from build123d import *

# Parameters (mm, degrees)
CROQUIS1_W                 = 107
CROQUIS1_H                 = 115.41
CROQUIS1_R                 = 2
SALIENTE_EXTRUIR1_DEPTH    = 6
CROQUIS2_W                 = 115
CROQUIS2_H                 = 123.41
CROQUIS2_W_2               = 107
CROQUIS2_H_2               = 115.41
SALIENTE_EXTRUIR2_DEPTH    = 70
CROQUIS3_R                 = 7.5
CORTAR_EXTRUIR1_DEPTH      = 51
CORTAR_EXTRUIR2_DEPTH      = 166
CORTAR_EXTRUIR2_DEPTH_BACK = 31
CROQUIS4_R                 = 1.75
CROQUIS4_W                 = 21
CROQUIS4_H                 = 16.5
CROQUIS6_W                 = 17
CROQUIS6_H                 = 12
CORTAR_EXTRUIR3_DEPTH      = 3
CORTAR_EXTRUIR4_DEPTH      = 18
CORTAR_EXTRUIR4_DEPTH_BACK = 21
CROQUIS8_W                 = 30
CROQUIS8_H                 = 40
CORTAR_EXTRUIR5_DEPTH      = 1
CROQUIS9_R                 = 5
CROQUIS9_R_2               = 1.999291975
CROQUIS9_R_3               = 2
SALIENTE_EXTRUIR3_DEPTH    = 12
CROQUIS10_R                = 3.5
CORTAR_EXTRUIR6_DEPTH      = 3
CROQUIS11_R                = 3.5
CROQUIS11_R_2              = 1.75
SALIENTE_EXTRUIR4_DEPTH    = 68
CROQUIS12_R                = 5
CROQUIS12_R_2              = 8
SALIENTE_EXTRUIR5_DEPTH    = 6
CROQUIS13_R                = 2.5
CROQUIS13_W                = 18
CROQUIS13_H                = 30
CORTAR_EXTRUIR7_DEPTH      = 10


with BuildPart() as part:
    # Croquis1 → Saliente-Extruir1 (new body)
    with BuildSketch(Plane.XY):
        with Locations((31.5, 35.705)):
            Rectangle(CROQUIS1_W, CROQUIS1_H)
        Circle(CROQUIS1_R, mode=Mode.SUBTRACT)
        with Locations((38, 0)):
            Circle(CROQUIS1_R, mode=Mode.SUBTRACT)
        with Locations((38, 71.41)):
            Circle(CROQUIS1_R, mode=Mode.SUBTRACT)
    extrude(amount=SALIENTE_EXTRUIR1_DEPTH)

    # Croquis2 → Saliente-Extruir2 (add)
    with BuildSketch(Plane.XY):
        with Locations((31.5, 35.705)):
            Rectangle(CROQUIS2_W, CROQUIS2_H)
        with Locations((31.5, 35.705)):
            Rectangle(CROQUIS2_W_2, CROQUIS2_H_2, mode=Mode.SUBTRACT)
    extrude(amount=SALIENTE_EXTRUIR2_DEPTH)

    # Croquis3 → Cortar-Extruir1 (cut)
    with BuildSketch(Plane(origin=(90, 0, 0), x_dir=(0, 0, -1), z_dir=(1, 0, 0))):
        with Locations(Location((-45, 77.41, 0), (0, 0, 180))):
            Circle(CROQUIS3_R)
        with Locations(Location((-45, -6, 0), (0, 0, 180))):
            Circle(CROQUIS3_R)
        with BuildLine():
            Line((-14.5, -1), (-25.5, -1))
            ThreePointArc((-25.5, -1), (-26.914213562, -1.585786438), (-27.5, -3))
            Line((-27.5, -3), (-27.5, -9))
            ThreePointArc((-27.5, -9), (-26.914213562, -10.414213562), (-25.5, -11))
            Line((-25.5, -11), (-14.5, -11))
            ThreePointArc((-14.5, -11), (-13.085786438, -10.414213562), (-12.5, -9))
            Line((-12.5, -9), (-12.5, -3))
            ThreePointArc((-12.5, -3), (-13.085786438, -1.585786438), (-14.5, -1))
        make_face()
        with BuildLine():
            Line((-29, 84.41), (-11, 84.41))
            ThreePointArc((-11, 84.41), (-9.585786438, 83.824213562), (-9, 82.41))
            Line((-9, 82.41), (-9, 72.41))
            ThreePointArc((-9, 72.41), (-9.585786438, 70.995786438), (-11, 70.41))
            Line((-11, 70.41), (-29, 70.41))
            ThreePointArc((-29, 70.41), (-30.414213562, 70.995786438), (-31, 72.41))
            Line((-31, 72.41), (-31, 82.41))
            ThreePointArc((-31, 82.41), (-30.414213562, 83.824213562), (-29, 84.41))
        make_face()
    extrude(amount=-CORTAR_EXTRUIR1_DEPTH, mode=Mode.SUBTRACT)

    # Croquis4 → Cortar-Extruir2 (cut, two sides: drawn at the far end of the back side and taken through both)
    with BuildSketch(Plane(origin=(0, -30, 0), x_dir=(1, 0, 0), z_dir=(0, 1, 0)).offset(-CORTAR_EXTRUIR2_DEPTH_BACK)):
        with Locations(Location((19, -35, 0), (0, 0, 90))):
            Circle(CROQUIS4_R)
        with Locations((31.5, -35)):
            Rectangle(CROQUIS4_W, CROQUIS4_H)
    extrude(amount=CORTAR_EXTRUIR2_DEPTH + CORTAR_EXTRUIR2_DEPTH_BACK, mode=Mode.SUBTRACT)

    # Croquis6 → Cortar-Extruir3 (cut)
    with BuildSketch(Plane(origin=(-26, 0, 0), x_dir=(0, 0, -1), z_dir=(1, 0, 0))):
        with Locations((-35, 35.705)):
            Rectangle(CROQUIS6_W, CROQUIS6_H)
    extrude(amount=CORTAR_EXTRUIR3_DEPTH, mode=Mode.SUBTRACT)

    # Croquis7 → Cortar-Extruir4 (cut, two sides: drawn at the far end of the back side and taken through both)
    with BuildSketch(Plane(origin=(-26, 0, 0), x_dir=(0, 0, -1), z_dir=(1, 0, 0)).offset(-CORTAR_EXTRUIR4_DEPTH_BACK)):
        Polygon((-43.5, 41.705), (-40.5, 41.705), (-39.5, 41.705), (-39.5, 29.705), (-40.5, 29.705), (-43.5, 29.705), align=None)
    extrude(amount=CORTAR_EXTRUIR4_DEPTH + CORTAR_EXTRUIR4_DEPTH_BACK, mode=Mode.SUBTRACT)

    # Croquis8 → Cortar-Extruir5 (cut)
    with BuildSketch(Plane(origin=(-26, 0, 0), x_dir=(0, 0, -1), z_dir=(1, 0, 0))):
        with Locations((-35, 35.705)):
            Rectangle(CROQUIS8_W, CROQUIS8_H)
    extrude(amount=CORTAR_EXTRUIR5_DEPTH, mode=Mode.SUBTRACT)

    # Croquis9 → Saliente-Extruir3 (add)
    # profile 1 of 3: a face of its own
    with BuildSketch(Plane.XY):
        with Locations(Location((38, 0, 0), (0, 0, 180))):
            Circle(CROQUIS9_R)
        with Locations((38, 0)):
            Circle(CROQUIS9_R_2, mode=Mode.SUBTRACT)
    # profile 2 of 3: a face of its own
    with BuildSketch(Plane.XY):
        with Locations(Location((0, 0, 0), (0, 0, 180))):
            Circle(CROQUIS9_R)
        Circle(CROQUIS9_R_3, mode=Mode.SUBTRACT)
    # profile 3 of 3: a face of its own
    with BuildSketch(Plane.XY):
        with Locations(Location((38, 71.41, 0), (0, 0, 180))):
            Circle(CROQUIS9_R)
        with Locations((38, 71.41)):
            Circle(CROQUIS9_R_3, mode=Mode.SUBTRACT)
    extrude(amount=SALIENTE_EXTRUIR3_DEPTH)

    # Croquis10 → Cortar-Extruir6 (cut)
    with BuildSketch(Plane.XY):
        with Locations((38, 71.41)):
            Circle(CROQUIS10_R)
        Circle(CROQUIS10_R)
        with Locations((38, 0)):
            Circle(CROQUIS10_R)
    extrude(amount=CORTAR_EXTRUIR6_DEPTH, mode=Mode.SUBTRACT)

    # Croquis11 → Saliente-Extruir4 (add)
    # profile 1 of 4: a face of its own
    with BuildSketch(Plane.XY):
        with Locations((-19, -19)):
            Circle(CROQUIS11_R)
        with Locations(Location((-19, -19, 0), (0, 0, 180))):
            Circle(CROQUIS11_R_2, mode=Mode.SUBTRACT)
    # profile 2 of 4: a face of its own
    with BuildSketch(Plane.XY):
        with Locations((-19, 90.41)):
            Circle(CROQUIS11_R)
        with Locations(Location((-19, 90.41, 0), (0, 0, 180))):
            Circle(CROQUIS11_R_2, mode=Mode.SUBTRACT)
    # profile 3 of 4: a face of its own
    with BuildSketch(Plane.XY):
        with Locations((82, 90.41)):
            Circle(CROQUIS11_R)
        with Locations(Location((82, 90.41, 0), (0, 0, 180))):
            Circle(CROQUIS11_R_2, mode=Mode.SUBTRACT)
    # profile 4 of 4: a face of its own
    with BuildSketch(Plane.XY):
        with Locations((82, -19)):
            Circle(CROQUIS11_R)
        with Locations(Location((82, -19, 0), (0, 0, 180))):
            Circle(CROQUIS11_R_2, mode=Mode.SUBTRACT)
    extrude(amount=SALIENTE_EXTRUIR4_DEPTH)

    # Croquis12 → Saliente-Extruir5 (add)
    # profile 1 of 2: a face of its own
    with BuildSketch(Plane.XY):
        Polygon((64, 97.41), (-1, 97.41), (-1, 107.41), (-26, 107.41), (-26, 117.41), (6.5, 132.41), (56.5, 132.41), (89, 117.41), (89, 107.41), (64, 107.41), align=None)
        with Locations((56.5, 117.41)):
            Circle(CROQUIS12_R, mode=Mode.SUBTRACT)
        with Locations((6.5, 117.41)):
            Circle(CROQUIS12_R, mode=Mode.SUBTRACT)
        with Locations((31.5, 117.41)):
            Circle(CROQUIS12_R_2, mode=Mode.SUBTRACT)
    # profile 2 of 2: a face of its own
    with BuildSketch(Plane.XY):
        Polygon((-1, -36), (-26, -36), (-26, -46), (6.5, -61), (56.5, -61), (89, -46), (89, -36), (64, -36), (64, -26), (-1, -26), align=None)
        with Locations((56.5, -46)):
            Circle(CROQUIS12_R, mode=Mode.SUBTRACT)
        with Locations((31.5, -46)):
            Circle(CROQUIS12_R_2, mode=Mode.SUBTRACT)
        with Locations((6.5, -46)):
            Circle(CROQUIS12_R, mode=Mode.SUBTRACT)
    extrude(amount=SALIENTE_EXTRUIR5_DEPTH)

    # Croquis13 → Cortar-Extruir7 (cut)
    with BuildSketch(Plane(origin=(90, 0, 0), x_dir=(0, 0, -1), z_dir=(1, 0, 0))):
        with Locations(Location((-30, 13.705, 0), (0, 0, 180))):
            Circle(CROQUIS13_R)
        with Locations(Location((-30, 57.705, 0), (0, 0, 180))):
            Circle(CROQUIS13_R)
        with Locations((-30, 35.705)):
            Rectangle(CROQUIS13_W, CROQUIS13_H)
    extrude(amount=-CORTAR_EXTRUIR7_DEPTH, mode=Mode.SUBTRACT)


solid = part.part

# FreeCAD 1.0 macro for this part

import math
import FreeCAD as App
import Part
import Sketcher

V = App.Vector
Q = App.Units.Quantity


def add_polygon(sketch, points):
    """Adds a closed chain of lines whose ends are joined by coincident constraints."""
    first, n = sketch.GeometryCount, len(points)
    for a, b in zip(points, points[1:] + points[:1]):
        sketch.addGeometry(Part.LineSegment(App.Vector(*a, 0), App.Vector(*b, 0)), False)
    for i in range(n):
        sketch.addConstraint(Sketcher.Constraint("Coincident", first + i, 2, first + (i + 1) % n, 1))

doc = App.newDocument("Part")
body = doc.addObject("PartDesign::Body", "Body")

sketch1 = doc.addObject("Sketcher::SketchObject", "Sketch")
body.addObject(sketch1)
sketch1.AttachmentSupport = (doc.XY_Plane, [""])
sketch1.MapMode = "FlatFace"
add_polygon(sketch1, [(-22, 93.4), (-22, -22), (85, -22), (85, 93.4)])
sketch1.addGeometry(Part.Circle(V(0, 0, 0), V(0, 0, 1), 2), False)
sketch1.addGeometry(Part.Circle(V(38, 0, 0), V(0, 0, 1), 2), False)
sketch1.addGeometry(Part.Circle(V(38, 71.4, 0), V(0, 0, 1), 2), False)
sketch1.addConstraint([
    Sketcher.Constraint("Vertical", 0),
    Sketcher.Constraint("Horizontal", 1),
    Sketcher.Constraint("Vertical", 2),
    Sketcher.Constraint("Horizontal", 3),
    Sketcher.Constraint("Coincident", 4, 3, -1, 1),
    Sketcher.Constraint("Equal", 4, 5),
    Sketcher.Constraint("Equal", 5, 6),
    Sketcher.Constraint("PointOnObject", 5, 3, -1),
    Sketcher.Constraint("Vertical", 5, 3, 6, 3),
    Sketcher.Constraint("Diameter", 4, Q("4 mm")),
    Sketcher.Constraint("DistanceX", 1, 1, 1, 2, Q("107 mm")),
    Sketcher.Constraint("DistanceX", -1, 1, 5, 3, Q("38 mm")),
    Sketcher.Constraint("DistanceX", 0, 2, -1, 1, Q("22 mm")),
    Sketcher.Constraint("DistanceY", 0, 2, -1, 1, Q("22 mm")),
    Sketcher.Constraint("DistanceY", 6, 3, 2, 2, Q("22 mm")),
    Sketcher.Constraint("DistanceY", 0, 2, 0, 1, Q("115.41 mm")),
])
pad1 = doc.addObject("PartDesign::Pad", "Pad")
body.addObject(pad1)
pad1.Profile = sketch1
pad1.Length = 6

sketch2 = doc.addObject("Sketcher::SketchObject", "Sketch001")
body.addObject(sketch2)
sketch2.AttachmentSupport = (doc.XY_Plane, [""])
sketch2.MapMode = "FlatFace"
add_polygon(sketch2, [(-26, 97), (-26, -26), (89, -26), (89, 97)])
add_polygon(sketch2, [(85, -22), (-22, -22), (-22, 93), (85, 93)])
sketch2.addConstraint([
    Sketcher.Constraint("Vertical", 0),
    Sketcher.Constraint("Horizontal", 1),
    Sketcher.Constraint("Vertical", 2),
    Sketcher.Constraint("Horizontal", 3),
    Sketcher.Constraint("Horizontal", 4),
    Sketcher.Constraint("Vertical", 5),
    Sketcher.Constraint("Horizontal", 6),
    Sketcher.Constraint("Vertical", 7),
    Sketcher.Constraint("DistanceX", 1, 1, 1, 2, Q("115 mm")),
    Sketcher.Constraint("DistanceX", 4, 2, 4, 1, Q("107 mm")),
    Sketcher.Constraint("DistanceX", 0, 2, -1, 1, Q("26 mm")),
    Sketcher.Constraint("DistanceY", 0, 2, -1, 1, Q("26 mm")),
    Sketcher.Constraint("DistanceX", 4, 2, -1, 1, Q("22 mm")),
    Sketcher.Constraint("DistanceY", 4, 2, -1, 1, Q("22 mm")),
    Sketcher.Constraint("DistanceY", 5, 2, 3, 2, Q("4 mm")),
    Sketcher.Constraint("DistanceY", 0, 2, 0, 1, Q("123.41 mm")),
])
pad2 = doc.addObject("PartDesign::Pad", "Pad001")
body.addObject(pad2)
pad2.Profile = sketch2
pad2.Length = 70

sketch3 = doc.addObject("Sketcher::SketchObject", "Sketch002")
body.addObject(sketch3)
sketch3.AttachmentSupport = (doc.YZ_Plane, [""])
sketch3.MapMode = "FlatFace"
sketch3.AttachmentOffset = App.Placement(V(0, 0, 90), App.Rotation())
sketch3.addGeometry([
    Part.Circle(V(77.4, 45, 0), V(0, 0, 1), 7.5),
    Part.Circle(V(-6, 45, 0), V(0, 0, 1), 7.5),
    Part.LineSegment(V(-1, 14.5, 0), V(-1, 25.5, 0)),
    Part.ArcOfCircle(Part.Circle(V(-3, 25.5, 0), V(0, 0, 1), 2), math.radians(0), math.radians(90)),
    Part.LineSegment(V(-3, 27.5, 0), V(-9, 27.5, 0)),
    Part.ArcOfCircle(Part.Circle(V(-9, 25.5, 0), V(0, 0, 1), 2), math.radians(90), math.radians(180)),
    Part.LineSegment(V(-11, 25.5, 0), V(-11, 14.5, 0)),
    Part.ArcOfCircle(Part.Circle(V(-9, 14.5, 0), V(0, 0, 1), 2), math.radians(-180), math.radians(-90)),
    Part.LineSegment(V(-9, 12.5, 0), V(-3, 12.5, 0)),
    Part.ArcOfCircle(Part.Circle(V(-3, 14.5, 0), V(0, 0, 1), 2), math.radians(-90), math.radians(0)),
    Part.LineSegment(V(84.4, 11, 0), V(84.4, 29, 0)),
    Part.ArcOfCircle(Part.Circle(V(82.4, 29, 0), V(0, 0, 1), 2), math.radians(0), math.radians(90)),
    Part.LineSegment(V(82.4, 31, 0), V(72.4, 31, 0)),
    Part.ArcOfCircle(Part.Circle(V(72.4, 29, 0), V(0, 0, 1), 2), math.radians(90), math.radians(180)),
    Part.LineSegment(V(70.4, 29, 0), V(70.4, 11, 0)),
    Part.ArcOfCircle(Part.Circle(V(72.4, 11, 0), V(0, 0, 1), 2), math.radians(-180), math.radians(-90)),
    Part.LineSegment(V(72.4, 9, 0), V(82.4, 9, 0)),
    Part.ArcOfCircle(Part.Circle(V(82.4, 11, 0), V(0, 0, 1), 2), math.radians(-90), math.radians(0)),
], False)
sketch3.addConstraint([
    Sketcher.Constraint("Tangent", 2, 2, 3, 1),
    Sketcher.Constraint("Tangent", 3, 2, 4, 1),
    Sketcher.Constraint("Tangent", 4, 2, 5, 1),
    Sketcher.Constraint("Tangent", 5, 2, 6, 1),
    Sketcher.Constraint("Tangent", 6, 2, 7, 1),
    Sketcher.Constraint("Tangent", 7, 2, 8, 1),
    Sketcher.Constraint("Tangent", 8, 2, 9, 1),
    Sketcher.Constraint("Tangent", 9, 2, 2, 1),
    Sketcher.Constraint("Tangent", 10, 2, 11, 1),
    Sketcher.Constraint("Tangent", 11, 2, 12, 1),
    Sketcher.Constraint("Tangent", 12, 2, 13, 1),
    Sketcher.Constraint("Tangent", 13, 2, 14, 1),
    Sketcher.Constraint("Tangent", 14, 2, 15, 1),
    Sketcher.Constraint("Tangent", 15, 2, 16, 1),
    Sketcher.Constraint("Tangent", 16, 2, 17, 1),
    Sketcher.Constraint("Tangent", 17, 2, 10, 1),
    Sketcher.Constraint("Vertical", 2),
    Sketcher.Constraint("Horizontal", 4),
    Sketcher.Constraint("Vertical", 6),
    Sketcher.Constraint("Horizontal", 8),
    Sketcher.Constraint("Vertical", 10),
    Sketcher.Constraint("Horizontal", 12),
    Sketcher.Constraint("Vertical", 14),
    Sketcher.Constraint("Horizontal", 16),
    Sketcher.Constraint("Equal", 0, 1),
    Sketcher.Constraint("Equal", 3, 5),
    Sketcher.Constraint("Equal", 5, 7),
    Sketcher.Constraint("Equal", 7, 9),
    Sketcher.Constraint("Equal", 9, 11),
    Sketcher.Constraint("Equal", 11, 13),
    Sketcher.Constraint("Equal", 13, 15),
    Sketcher.Constraint("Equal", 15, 17),
    Sketcher.Constraint("Horizontal", 0, 3, 1, 3),
    Sketcher.Constraint("Diameter", 0, Q("15 mm")),
    Sketcher.Constraint("Radius", 3, Q("2 mm")),
    Sketcher.Constraint("DistanceX", 4, 2, 4, 1, Q("6 mm")),
    Sketcher.Constraint("DistanceX", 12, 2, 12, 1, Q("10 mm")),
    Sketcher.Constraint("DistanceY", 2, 1, 2, 2, Q("11 mm")),
    Sketcher.Constraint("DistanceY", 10, 1, 10, 2, Q("18 mm")),
    Sketcher.Constraint("DistanceY", -1, 1, 0, 3, Q("45 mm")),
    Sketcher.Constraint("DistanceX", 1, 3, -1, 1, Q("6 mm")),
    Sketcher.Constraint("DistanceX", 3, 3, -1, 1, Q("3 mm")),
    Sketcher.Constraint("DistanceY", -1, 1, 11, 3, Q("29 mm")),
    Sketcher.Constraint("DistanceX", 0, 3, 11, 3, Q("5 mm")),
    Sketcher.Constraint("DistanceY", -1, 1, 3, 3, Q("25.5 mm")),
    Sketcher.Constraint("DistanceX", -1, 1, 0, 3, Q("77.41 mm")),
])
pocket1 = doc.addObject("PartDesign::Pocket", "Pocket")
body.addObject(pocket1)
pocket1.Profile = sketch3
pocket1.Length = 51

sketch4 = doc.addObject("Sketcher::SketchObject", "Sketch003")
body.addObject(sketch4)
sketch4.AttachmentSupport = (doc.XZ_Plane, [""])
sketch4.MapMode = "FlatFace"
sketch4.AttachmentOffset = App.Placement(V(0, 0, 30), App.Rotation())
sketch4.addGeometry(Part.Circle(V(19, 35, 0), V(0, 0, 1), 1.8), False)
add_polygon(sketch4, [(21, 26.8), (21, 43.2), (42, 43.2), (42, 26.8)])
sketch4.addConstraint([
    Sketcher.Constraint("Vertical", 1),
    Sketcher.Constraint("Horizontal", 2),
    Sketcher.Constraint("Vertical", 3),
    Sketcher.Constraint("Horizontal", 4),
    Sketcher.Constraint("Diameter", 0, Q("3.5 mm")),
    Sketcher.Constraint("DistanceX", 2, 1, 2, 2, Q("21 mm")),
    Sketcher.Constraint("DistanceY", 1, 1, 1, 2, Q("16.5 mm")),
    Sketcher.Constraint("DistanceX", -1, 1, 0, 3, Q("19 mm")),
    Sketcher.Constraint("DistanceY", -1, 1, 0, 3, Q("35 mm")),
    Sketcher.Constraint("DistanceX", -1, 1, 1, 2, Q("21 mm")),
    Sketcher.Constraint("DistanceY", -1, 1, 1, 2, Q("43.25 mm")),
])
pocket2 = doc.addObject("PartDesign::Pocket", "Pocket001")
body.addObject(pocket2)
pocket2.Profile = sketch4
pocket2.Type = "ThroughAll"
pocket2.Midplane = True

sketch5 = doc.addObject("Sketcher::SketchObject", "Sketch004")
body.addObject(sketch5)
sketch5.AttachmentSupport = (doc.YZ_Plane, [""])
sketch5.MapMode = "FlatFace"
sketch5.AttachmentOffset = App.Placement(V(0, 0, -26), App.Rotation())
add_polygon(sketch5, [(42, 44), (30, 44), (30, 26), (42, 26)])
sketch5.addConstraint([
    Sketcher.Constraint("Horizontal", 0),
    Sketcher.Constraint("Vertical", 1),
    Sketcher.Constraint("Horizontal", 2),
    Sketcher.Constraint("Vertical", 3),
    Sketcher.Constraint("DistanceX", 0, 2, 0, 1, Q("12 mm")),
    Sketcher.Constraint("DistanceY", 1, 2, 1, 1, Q("17 mm")),
    Sketcher.Constraint("DistanceY", -1, 1, 0, 2, Q("43.5 mm")),
    Sketcher.Constraint("DistanceX", -1, 1, 0, 2, Q("29.705 mm")),
])
pocket3 = doc.addObject("PartDesign::Pocket", "Pocket002")
body.addObject(pocket3)
pocket3.Profile = sketch5
pocket3.Length = 3
pocket3.Reversed = True

sketch6 = doc.addObject("Sketcher::SketchObject", "Sketch005")
body.addObject(sketch6)
sketch6.AttachmentSupport = (doc.YZ_Plane, [""])
sketch6.MapMode = "FlatFace"
sketch6.AttachmentOffset = App.Placement(V(0, 0, -26), App.Rotation())
add_polygon(sketch6, [(41.7, 39.5), (41.7, 43.5), (29.7, 43.5), (29.7, 39.5)])
sketch6.addConstraint([
    Sketcher.Constraint("Vertical", 0),
    Sketcher.Constraint("Horizontal", 1),
    Sketcher.Constraint("Vertical", 2),
    Sketcher.Constraint("Horizontal", 3),
    Sketcher.Constraint("DistanceX", 1, 2, 1, 1, Q("12 mm")),
    Sketcher.Constraint("DistanceY", 0, 1, 0, 2, Q("4 mm")),
    Sketcher.Constraint("DistanceY", -1, 1, 0, 2, Q("43.5 mm")),
    Sketcher.Constraint("DistanceX", -1, 1, 0, 2, Q("41.705 mm")),
])
pocket4 = doc.addObject("PartDesign::Pocket", "Pocket003")
body.addObject(pocket4)
pocket4.Profile = sketch6
pocket4.Type = "TwoLengths"
pocket4.Length = 18
pocket4.Length2 = 21
pocket4.Reversed = True

sketch7 = doc.addObject("Sketcher::SketchObject", "Sketch006")
body.addObject(sketch7)
sketch7.AttachmentSupport = (doc.YZ_Plane, [""])
sketch7.MapMode = "FlatFace"
sketch7.AttachmentOffset = App.Placement(V(0, 0, -26), App.Rotation())
add_polygon(sketch7, [(56, 50), (16, 50), (16, 20), (56, 20)])
sketch7.addConstraint([
    Sketcher.Constraint("Horizontal", 0),
    Sketcher.Constraint("Vertical", 1),
    Sketcher.Constraint("Horizontal", 2),
    Sketcher.Constraint("Vertical", 3),
    Sketcher.Constraint("DistanceX", 0, 2, 0, 1, Q("40 mm")),
    Sketcher.Constraint("DistanceY", 1, 2, 1, 1, Q("30 mm")),
    Sketcher.Constraint("DistanceY", -1, 1, 0, 2, Q("50 mm")),
    Sketcher.Constraint("DistanceX", -1, 1, 0, 2, Q("15.705 mm")),
])
pocket5 = doc.addObject("PartDesign::Pocket", "Pocket004")
body.addObject(pocket5)
pocket5.Profile = sketch7
pocket5.Length = 1
pocket5.Reversed = True

sketch8 = doc.addObject("Sketcher::SketchObject", "Sketch007")
body.addObject(sketch8)
sketch8.AttachmentSupport = (doc.XY_Plane, [""])
sketch8.MapMode = "FlatFace"
sketch8.addGeometry([
    Part.Circle(V(38, 0, 0), V(0, 0, 1), 5),
    Part.Circle(V(38, 0, 0), V(0, 0, 1), 2),
    Part.Circle(V(0, 0, 0), V(0, 0, 1), 5),
    Part.Circle(V(0, 0, 0), V(0, 0, 1), 2),
    Part.Circle(V(38, 71.4, 0), V(0, 0, 1), 5),
    Part.Circle(V(38, 71.4, 0), V(0, 0, 1), 2),
], False)
sketch8.addConstraint([
    Sketcher.Constraint("Coincident", 2, 3, -1, 1),
    Sketcher.Constraint("Coincident", 3, 3, -1, 1),
    Sketcher.Constraint("Coincident", 1, 3, 0, 3),
    Sketcher.Constraint("Coincident", 5, 3, 4, 3),
    Sketcher.Constraint("Equal", 0, 2),
    Sketcher.Constraint("Equal", 2, 4),
    Sketcher.Constraint("Equal", 3, 5),
    Sketcher.Constraint("PointOnObject", 0, 3, -1),
    Sketcher.Constraint("Vertical", 1, 3, 4, 3),
    Sketcher.Constraint("Diameter", 0, Q("10 mm")),
    Sketcher.Constraint("Diameter", 3, Q("4 mm")),
    Sketcher.Constraint("DistanceX", -1, 1, 0, 3, Q("38 mm")),
    Sketcher.Constraint("DistanceY", -1, 1, 4, 3, Q("71.41 mm")),
    Sketcher.Constraint("Diameter", 1, Q("3.998584 mm")),
])
pad3 = doc.addObject("PartDesign::Pad", "Pad002")
body.addObject(pad3)
pad3.Profile = sketch8
pad3.Length = 12

sketch9 = doc.addObject("Sketcher::SketchObject", "Sketch008")
body.addObject(sketch9)
sketch9.AttachmentSupport = (doc.XY_Plane, [""])
sketch9.MapMode = "FlatFace"
sketch9.addGeometry([
    Part.Circle(V(38, 71.4, 0), V(0, 0, 1), 3.5),
    Part.Circle(V(0, 0, 0), V(0, 0, 1), 3.5),
    Part.Circle(V(38, 0, 0), V(0, 0, 1), 3.5),
], False)
sketch9.addConstraint([
    Sketcher.Constraint("Coincident", 1, 3, -1, 1),
    Sketcher.Constraint("Equal", 0, 1),
    Sketcher.Constraint("Equal", 1, 2),
    Sketcher.Constraint("PointOnObject", 2, 3, -1),
    Sketcher.Constraint("Vertical", 0, 3, 2, 3),
    Sketcher.Constraint("Diameter", 0, Q("7 mm")),
    Sketcher.Constraint("DistanceX", -1, 1, 0, 3, Q("38 mm")),
    Sketcher.Constraint("DistanceY", -1, 1, 0, 3, Q("71.41 mm")),
])
pocket6 = doc.addObject("PartDesign::Pocket", "Pocket005")
body.addObject(pocket6)
pocket6.Profile = sketch9
pocket6.Length = 3
pocket6.Reversed = True

sketch10 = doc.addObject("Sketcher::SketchObject", "Sketch009")
body.addObject(sketch10)
sketch10.AttachmentSupport = (doc.XY_Plane, [""])
sketch10.MapMode = "FlatFace"
sketch10.addGeometry([
    Part.Circle(V(-19, -19, 0), V(0, 0, 1), 3.5),
    Part.Circle(V(-19, -19, 0), V(0, 0, 1), 1.8),
    Part.Circle(V(-19, 90.4, 0), V(0, 0, 1), 3.5),
    Part.Circle(V(-19, 90.4, 0), V(0, 0, 1), 1.8),
    Part.Circle(V(82, 90.4, 0), V(0, 0, 1), 3.5),
    Part.Circle(V(82, 90.4, 0), V(0, 0, 1), 1.8),
    Part.Circle(V(82, -19, 0), V(0, 0, 1), 3.5),
    Part.Circle(V(82, -19, 0), V(0, 0, 1), 1.8),
], False)
sketch10.addConstraint([
    Sketcher.Constraint("Coincident", 1, 3, 0, 3),
    Sketcher.Constraint("Coincident", 3, 3, 2, 3),
    Sketcher.Constraint("Coincident", 5, 3, 4, 3),
    Sketcher.Constraint("Coincident", 7, 3, 6, 3),
    Sketcher.Constraint("Equal", 0, 2),
    Sketcher.Constraint("Equal", 1, 3),
    Sketcher.Constraint("Equal", 2, 4),
    Sketcher.Constraint("Equal", 3, 5),
    Sketcher.Constraint("Equal", 4, 6),
    Sketcher.Constraint("Equal", 5, 7),
    Sketcher.Constraint("Horizontal", 3, 3, 4, 3),
    Sketcher.Constraint("Horizontal", 1, 3, 6, 3),
    Sketcher.Constraint("Vertical", 1, 3, 2, 3),
    Sketcher.Constraint("Vertical", 5, 3, 6, 3),
    Sketcher.Constraint("Diameter", 0, Q("7 mm")),
    Sketcher.Constraint("Diameter", 1, Q("3.5 mm")),
    Sketcher.Constraint("DistanceX", 0, 3, -1, 1, Q("19 mm")),
    Sketcher.Constraint("DistanceY", 0, 3, -1, 1, Q("19 mm")),
    Sketcher.Constraint("DistanceX", -1, 1, 4, 3, Q("82 mm")),
    Sketcher.Constraint("DistanceY", -1, 1, 2, 3, Q("90.41 mm")),
])
pad4 = doc.addObject("PartDesign::Pad", "Pad003")
body.addObject(pad4)
pad4.Profile = sketch10
pad4.Length = 68

sketch11 = doc.addObject("Sketcher::SketchObject", "Sketch010")
body.addObject(sketch11)
sketch11.AttachmentSupport = (doc.XY_Plane, [""])
sketch11.MapMode = "FlatFace"
add_polygon(sketch11, [(-1, 97), (64, 97), (64, 107), (89, 107), (89, 117), (56, 132), (6, 132), (-26, 117), (-26, 107), (-1, 107)])
sketch11.addGeometry(Part.Circle(V(56, 117, 0), V(0, 0, 1), 5), False)
sketch11.addGeometry(Part.Circle(V(32, 117, 0), V(0, 0, 1), 8), False)
sketch11.addGeometry(Part.Circle(V(6, 117, 0), V(0, 0, 1), 5), False)
add_polygon(sketch11, [(-1, -36), (-26, -36), (-26, -46), (6, -61), (56, -61), (89, -46), (89, -36), (64, -36), (64, -26), (-1, -26)])
sketch11.addGeometry(Part.Circle(V(6, -46, 0), V(0, 0, 1), 5), False)
sketch11.addGeometry(Part.Circle(V(32, -46, 0), V(0, 0, 1), 8), False)
sketch11.addGeometry(Part.Circle(V(56, -46, 0), V(0, 0, 1), 5), False)
sketch11.addConstraint([
    Sketcher.Constraint("Horizontal", 0),
    Sketcher.Constraint("Vertical", 1),
    Sketcher.Constraint("Horizontal", 2),
    Sketcher.Constraint("Vertical", 3),
    Sketcher.Constraint("Horizontal", 5),
    Sketcher.Constraint("Vertical", 7),
    Sketcher.Constraint("Horizontal", 8),
    Sketcher.Constraint("Vertical", 9),
    Sketcher.Constraint("Horizontal", 13),
    Sketcher.Constraint("Vertical", 14),
    Sketcher.Constraint("Horizontal", 16),
    Sketcher.Constraint("Vertical", 18),
    Sketcher.Constraint("Horizontal", 19),
    Sketcher.Constraint("Vertical", 20),
    Sketcher.Constraint("Horizontal", 21),
    Sketcher.Constraint("Vertical", 22),
    Sketcher.Constraint("Equal", 10, 12),
    Sketcher.Constraint("Equal", 12, 23),
    Sketcher.Constraint("Equal", 11, 24),
    Sketcher.Constraint("Equal", 23, 25),
    Sketcher.Constraint("Parallel", 4, 15),
    Sketcher.Constraint("Parallel", 6, 17),
    Sketcher.Constraint("Horizontal", 10, 3, 11, 3),
    Sketcher.Constraint("Horizontal", 11, 3, 12, 3),
    Sketcher.Constraint("Horizontal", 23, 3, 24, 3),
    Sketcher.Constraint("Horizontal", 24, 3, 25, 3),
    Sketcher.Constraint("Horizontal", 12, 3, 3, 2),
    Sketcher.Constraint("Horizontal", 3, 2, 6, 2),
    Sketcher.Constraint("Horizontal", 2, 2, 7, 2),
    Sketcher.Constraint("Horizontal", 25, 3, 14, 2),
    Sketcher.Constraint("Horizontal", 14, 2, 17, 2),
    Sketcher.Constraint("Horizontal", 13, 2, 18, 2),
    Sketcher.Constraint("Vertical", 12, 3, 23, 3),
    Sketcher.Constraint("Vertical", 11, 3, 24, 3),
    Sketcher.Constraint("Vertical", 10, 3, 25, 3),
    Sketcher.Constraint("Vertical", 25, 3, 4, 2),
    Sketcher.Constraint("Vertical", 23, 3, 5, 2),
    Sketcher.Constraint("Vertical", 7, 2, 13, 2),
    Sketcher.Constraint("Vertical", 5, 2, 15, 2),
    Sketcher.Constraint("Vertical", 4, 2, 16, 2),
    Sketcher.Constraint("Vertical", 3, 2, 17, 2),
    Sketcher.Constraint("Vertical", 1, 2, 19, 2),
    Sketcher.Constraint("Vertical", 9, 2, 21, 2),
    Sketcher.Constraint("Equal", 2, 8),
    Sketcher.Constraint("Equal", 1, 3),
    Sketcher.Constraint("Equal", 9, 14),
    Sketcher.Constraint("Equal", 18, 20),
    Sketcher.Constraint("Diameter", 10, Q("10 mm")),
    Sketcher.Constraint("Diameter", 11, Q("16 mm")),
    Sketcher.Constraint("DistanceX", 0, 1, 0, 2, Q("65 mm")),
    Sketcher.Constraint("DistanceX", 2, 1, 2, 2, Q("25 mm")),
    Sketcher.Constraint("DistanceX", 5, 2, 5, 1, Q("50 mm")),
    Sketcher.Constraint("DistanceY", 1, 1, 1, 2, Q("10 mm")),
    Sketcher.Constraint("DistanceY", 23, 3, -1, 1, Q("46 mm")),
    Sketcher.Constraint("DistanceX", -1, 1, 0, 2, Q("64 mm")),
    Sketcher.Constraint("DistanceY", 15, 2, -1, 1, Q("61 mm")),
    Sketcher.Constraint("DistanceX", 11, 3, 10, 3, Q("25 mm")),
    Sketcher.Constraint("DistanceY", -1, 1, 10, 3, Q("117.41 mm")),
])
pad5 = doc.addObject("PartDesign::Pad", "Pad004")
body.addObject(pad5)
pad5.Profile = sketch11
pad5.Length = 6

sketch12 = doc.addObject("Sketcher::SketchObject", "Sketch011")
body.addObject(sketch12)
sketch12.AttachmentSupport = (doc.YZ_Plane, [""])
sketch12.MapMode = "FlatFace"
sketch12.AttachmentOffset = App.Placement(V(0, 0, 90), App.Rotation())
sketch12.addGeometry(Part.Circle(V(13.7, 30, 0), V(0, 0, 1), 2.5), False)
sketch12.addGeometry(Part.Circle(V(57.7, 30, 0), V(0, 0, 1), 2.5), False)
add_polygon(sketch12, [(50.7, 39), (20.7, 39), (20.7, 21), (50.7, 21)])
sketch12.addConstraint([
    Sketcher.Constraint("Horizontal", 2),
    Sketcher.Constraint("Vertical", 3),
    Sketcher.Constraint("Horizontal", 4),
    Sketcher.Constraint("Vertical", 5),
    Sketcher.Constraint("Equal", 0, 1),
    Sketcher.Constraint("Horizontal", 0, 3, 1, 3),
    Sketcher.Constraint("Diameter", 0, Q("5 mm")),
    Sketcher.Constraint("DistanceX", 2, 2, 2, 1, Q("30 mm")),
    Sketcher.Constraint("DistanceY", 3, 2, 3, 1, Q("18 mm")),
    Sketcher.Constraint("DistanceY", -1, 1, 0, 3, Q("30 mm")),
    Sketcher.Constraint("DistanceY", -1, 1, 2, 2, Q("39 mm")),
    Sketcher.Constraint("DistanceX", 0, 3, 1, 3, Q("44 mm")),
    Sketcher.Constraint("DistanceX", 0, 3, 2, 2, Q("7 mm")),
    Sketcher.Constraint("DistanceX", -1, 1, 0, 3, Q("13.705 mm")),
])
pocket7 = doc.addObject("PartDesign::Pocket", "Pocket006")
body.addObject(pocket7)
pocket7.Profile = sketch12
pocket7.Length = 10

doc.recompute()
